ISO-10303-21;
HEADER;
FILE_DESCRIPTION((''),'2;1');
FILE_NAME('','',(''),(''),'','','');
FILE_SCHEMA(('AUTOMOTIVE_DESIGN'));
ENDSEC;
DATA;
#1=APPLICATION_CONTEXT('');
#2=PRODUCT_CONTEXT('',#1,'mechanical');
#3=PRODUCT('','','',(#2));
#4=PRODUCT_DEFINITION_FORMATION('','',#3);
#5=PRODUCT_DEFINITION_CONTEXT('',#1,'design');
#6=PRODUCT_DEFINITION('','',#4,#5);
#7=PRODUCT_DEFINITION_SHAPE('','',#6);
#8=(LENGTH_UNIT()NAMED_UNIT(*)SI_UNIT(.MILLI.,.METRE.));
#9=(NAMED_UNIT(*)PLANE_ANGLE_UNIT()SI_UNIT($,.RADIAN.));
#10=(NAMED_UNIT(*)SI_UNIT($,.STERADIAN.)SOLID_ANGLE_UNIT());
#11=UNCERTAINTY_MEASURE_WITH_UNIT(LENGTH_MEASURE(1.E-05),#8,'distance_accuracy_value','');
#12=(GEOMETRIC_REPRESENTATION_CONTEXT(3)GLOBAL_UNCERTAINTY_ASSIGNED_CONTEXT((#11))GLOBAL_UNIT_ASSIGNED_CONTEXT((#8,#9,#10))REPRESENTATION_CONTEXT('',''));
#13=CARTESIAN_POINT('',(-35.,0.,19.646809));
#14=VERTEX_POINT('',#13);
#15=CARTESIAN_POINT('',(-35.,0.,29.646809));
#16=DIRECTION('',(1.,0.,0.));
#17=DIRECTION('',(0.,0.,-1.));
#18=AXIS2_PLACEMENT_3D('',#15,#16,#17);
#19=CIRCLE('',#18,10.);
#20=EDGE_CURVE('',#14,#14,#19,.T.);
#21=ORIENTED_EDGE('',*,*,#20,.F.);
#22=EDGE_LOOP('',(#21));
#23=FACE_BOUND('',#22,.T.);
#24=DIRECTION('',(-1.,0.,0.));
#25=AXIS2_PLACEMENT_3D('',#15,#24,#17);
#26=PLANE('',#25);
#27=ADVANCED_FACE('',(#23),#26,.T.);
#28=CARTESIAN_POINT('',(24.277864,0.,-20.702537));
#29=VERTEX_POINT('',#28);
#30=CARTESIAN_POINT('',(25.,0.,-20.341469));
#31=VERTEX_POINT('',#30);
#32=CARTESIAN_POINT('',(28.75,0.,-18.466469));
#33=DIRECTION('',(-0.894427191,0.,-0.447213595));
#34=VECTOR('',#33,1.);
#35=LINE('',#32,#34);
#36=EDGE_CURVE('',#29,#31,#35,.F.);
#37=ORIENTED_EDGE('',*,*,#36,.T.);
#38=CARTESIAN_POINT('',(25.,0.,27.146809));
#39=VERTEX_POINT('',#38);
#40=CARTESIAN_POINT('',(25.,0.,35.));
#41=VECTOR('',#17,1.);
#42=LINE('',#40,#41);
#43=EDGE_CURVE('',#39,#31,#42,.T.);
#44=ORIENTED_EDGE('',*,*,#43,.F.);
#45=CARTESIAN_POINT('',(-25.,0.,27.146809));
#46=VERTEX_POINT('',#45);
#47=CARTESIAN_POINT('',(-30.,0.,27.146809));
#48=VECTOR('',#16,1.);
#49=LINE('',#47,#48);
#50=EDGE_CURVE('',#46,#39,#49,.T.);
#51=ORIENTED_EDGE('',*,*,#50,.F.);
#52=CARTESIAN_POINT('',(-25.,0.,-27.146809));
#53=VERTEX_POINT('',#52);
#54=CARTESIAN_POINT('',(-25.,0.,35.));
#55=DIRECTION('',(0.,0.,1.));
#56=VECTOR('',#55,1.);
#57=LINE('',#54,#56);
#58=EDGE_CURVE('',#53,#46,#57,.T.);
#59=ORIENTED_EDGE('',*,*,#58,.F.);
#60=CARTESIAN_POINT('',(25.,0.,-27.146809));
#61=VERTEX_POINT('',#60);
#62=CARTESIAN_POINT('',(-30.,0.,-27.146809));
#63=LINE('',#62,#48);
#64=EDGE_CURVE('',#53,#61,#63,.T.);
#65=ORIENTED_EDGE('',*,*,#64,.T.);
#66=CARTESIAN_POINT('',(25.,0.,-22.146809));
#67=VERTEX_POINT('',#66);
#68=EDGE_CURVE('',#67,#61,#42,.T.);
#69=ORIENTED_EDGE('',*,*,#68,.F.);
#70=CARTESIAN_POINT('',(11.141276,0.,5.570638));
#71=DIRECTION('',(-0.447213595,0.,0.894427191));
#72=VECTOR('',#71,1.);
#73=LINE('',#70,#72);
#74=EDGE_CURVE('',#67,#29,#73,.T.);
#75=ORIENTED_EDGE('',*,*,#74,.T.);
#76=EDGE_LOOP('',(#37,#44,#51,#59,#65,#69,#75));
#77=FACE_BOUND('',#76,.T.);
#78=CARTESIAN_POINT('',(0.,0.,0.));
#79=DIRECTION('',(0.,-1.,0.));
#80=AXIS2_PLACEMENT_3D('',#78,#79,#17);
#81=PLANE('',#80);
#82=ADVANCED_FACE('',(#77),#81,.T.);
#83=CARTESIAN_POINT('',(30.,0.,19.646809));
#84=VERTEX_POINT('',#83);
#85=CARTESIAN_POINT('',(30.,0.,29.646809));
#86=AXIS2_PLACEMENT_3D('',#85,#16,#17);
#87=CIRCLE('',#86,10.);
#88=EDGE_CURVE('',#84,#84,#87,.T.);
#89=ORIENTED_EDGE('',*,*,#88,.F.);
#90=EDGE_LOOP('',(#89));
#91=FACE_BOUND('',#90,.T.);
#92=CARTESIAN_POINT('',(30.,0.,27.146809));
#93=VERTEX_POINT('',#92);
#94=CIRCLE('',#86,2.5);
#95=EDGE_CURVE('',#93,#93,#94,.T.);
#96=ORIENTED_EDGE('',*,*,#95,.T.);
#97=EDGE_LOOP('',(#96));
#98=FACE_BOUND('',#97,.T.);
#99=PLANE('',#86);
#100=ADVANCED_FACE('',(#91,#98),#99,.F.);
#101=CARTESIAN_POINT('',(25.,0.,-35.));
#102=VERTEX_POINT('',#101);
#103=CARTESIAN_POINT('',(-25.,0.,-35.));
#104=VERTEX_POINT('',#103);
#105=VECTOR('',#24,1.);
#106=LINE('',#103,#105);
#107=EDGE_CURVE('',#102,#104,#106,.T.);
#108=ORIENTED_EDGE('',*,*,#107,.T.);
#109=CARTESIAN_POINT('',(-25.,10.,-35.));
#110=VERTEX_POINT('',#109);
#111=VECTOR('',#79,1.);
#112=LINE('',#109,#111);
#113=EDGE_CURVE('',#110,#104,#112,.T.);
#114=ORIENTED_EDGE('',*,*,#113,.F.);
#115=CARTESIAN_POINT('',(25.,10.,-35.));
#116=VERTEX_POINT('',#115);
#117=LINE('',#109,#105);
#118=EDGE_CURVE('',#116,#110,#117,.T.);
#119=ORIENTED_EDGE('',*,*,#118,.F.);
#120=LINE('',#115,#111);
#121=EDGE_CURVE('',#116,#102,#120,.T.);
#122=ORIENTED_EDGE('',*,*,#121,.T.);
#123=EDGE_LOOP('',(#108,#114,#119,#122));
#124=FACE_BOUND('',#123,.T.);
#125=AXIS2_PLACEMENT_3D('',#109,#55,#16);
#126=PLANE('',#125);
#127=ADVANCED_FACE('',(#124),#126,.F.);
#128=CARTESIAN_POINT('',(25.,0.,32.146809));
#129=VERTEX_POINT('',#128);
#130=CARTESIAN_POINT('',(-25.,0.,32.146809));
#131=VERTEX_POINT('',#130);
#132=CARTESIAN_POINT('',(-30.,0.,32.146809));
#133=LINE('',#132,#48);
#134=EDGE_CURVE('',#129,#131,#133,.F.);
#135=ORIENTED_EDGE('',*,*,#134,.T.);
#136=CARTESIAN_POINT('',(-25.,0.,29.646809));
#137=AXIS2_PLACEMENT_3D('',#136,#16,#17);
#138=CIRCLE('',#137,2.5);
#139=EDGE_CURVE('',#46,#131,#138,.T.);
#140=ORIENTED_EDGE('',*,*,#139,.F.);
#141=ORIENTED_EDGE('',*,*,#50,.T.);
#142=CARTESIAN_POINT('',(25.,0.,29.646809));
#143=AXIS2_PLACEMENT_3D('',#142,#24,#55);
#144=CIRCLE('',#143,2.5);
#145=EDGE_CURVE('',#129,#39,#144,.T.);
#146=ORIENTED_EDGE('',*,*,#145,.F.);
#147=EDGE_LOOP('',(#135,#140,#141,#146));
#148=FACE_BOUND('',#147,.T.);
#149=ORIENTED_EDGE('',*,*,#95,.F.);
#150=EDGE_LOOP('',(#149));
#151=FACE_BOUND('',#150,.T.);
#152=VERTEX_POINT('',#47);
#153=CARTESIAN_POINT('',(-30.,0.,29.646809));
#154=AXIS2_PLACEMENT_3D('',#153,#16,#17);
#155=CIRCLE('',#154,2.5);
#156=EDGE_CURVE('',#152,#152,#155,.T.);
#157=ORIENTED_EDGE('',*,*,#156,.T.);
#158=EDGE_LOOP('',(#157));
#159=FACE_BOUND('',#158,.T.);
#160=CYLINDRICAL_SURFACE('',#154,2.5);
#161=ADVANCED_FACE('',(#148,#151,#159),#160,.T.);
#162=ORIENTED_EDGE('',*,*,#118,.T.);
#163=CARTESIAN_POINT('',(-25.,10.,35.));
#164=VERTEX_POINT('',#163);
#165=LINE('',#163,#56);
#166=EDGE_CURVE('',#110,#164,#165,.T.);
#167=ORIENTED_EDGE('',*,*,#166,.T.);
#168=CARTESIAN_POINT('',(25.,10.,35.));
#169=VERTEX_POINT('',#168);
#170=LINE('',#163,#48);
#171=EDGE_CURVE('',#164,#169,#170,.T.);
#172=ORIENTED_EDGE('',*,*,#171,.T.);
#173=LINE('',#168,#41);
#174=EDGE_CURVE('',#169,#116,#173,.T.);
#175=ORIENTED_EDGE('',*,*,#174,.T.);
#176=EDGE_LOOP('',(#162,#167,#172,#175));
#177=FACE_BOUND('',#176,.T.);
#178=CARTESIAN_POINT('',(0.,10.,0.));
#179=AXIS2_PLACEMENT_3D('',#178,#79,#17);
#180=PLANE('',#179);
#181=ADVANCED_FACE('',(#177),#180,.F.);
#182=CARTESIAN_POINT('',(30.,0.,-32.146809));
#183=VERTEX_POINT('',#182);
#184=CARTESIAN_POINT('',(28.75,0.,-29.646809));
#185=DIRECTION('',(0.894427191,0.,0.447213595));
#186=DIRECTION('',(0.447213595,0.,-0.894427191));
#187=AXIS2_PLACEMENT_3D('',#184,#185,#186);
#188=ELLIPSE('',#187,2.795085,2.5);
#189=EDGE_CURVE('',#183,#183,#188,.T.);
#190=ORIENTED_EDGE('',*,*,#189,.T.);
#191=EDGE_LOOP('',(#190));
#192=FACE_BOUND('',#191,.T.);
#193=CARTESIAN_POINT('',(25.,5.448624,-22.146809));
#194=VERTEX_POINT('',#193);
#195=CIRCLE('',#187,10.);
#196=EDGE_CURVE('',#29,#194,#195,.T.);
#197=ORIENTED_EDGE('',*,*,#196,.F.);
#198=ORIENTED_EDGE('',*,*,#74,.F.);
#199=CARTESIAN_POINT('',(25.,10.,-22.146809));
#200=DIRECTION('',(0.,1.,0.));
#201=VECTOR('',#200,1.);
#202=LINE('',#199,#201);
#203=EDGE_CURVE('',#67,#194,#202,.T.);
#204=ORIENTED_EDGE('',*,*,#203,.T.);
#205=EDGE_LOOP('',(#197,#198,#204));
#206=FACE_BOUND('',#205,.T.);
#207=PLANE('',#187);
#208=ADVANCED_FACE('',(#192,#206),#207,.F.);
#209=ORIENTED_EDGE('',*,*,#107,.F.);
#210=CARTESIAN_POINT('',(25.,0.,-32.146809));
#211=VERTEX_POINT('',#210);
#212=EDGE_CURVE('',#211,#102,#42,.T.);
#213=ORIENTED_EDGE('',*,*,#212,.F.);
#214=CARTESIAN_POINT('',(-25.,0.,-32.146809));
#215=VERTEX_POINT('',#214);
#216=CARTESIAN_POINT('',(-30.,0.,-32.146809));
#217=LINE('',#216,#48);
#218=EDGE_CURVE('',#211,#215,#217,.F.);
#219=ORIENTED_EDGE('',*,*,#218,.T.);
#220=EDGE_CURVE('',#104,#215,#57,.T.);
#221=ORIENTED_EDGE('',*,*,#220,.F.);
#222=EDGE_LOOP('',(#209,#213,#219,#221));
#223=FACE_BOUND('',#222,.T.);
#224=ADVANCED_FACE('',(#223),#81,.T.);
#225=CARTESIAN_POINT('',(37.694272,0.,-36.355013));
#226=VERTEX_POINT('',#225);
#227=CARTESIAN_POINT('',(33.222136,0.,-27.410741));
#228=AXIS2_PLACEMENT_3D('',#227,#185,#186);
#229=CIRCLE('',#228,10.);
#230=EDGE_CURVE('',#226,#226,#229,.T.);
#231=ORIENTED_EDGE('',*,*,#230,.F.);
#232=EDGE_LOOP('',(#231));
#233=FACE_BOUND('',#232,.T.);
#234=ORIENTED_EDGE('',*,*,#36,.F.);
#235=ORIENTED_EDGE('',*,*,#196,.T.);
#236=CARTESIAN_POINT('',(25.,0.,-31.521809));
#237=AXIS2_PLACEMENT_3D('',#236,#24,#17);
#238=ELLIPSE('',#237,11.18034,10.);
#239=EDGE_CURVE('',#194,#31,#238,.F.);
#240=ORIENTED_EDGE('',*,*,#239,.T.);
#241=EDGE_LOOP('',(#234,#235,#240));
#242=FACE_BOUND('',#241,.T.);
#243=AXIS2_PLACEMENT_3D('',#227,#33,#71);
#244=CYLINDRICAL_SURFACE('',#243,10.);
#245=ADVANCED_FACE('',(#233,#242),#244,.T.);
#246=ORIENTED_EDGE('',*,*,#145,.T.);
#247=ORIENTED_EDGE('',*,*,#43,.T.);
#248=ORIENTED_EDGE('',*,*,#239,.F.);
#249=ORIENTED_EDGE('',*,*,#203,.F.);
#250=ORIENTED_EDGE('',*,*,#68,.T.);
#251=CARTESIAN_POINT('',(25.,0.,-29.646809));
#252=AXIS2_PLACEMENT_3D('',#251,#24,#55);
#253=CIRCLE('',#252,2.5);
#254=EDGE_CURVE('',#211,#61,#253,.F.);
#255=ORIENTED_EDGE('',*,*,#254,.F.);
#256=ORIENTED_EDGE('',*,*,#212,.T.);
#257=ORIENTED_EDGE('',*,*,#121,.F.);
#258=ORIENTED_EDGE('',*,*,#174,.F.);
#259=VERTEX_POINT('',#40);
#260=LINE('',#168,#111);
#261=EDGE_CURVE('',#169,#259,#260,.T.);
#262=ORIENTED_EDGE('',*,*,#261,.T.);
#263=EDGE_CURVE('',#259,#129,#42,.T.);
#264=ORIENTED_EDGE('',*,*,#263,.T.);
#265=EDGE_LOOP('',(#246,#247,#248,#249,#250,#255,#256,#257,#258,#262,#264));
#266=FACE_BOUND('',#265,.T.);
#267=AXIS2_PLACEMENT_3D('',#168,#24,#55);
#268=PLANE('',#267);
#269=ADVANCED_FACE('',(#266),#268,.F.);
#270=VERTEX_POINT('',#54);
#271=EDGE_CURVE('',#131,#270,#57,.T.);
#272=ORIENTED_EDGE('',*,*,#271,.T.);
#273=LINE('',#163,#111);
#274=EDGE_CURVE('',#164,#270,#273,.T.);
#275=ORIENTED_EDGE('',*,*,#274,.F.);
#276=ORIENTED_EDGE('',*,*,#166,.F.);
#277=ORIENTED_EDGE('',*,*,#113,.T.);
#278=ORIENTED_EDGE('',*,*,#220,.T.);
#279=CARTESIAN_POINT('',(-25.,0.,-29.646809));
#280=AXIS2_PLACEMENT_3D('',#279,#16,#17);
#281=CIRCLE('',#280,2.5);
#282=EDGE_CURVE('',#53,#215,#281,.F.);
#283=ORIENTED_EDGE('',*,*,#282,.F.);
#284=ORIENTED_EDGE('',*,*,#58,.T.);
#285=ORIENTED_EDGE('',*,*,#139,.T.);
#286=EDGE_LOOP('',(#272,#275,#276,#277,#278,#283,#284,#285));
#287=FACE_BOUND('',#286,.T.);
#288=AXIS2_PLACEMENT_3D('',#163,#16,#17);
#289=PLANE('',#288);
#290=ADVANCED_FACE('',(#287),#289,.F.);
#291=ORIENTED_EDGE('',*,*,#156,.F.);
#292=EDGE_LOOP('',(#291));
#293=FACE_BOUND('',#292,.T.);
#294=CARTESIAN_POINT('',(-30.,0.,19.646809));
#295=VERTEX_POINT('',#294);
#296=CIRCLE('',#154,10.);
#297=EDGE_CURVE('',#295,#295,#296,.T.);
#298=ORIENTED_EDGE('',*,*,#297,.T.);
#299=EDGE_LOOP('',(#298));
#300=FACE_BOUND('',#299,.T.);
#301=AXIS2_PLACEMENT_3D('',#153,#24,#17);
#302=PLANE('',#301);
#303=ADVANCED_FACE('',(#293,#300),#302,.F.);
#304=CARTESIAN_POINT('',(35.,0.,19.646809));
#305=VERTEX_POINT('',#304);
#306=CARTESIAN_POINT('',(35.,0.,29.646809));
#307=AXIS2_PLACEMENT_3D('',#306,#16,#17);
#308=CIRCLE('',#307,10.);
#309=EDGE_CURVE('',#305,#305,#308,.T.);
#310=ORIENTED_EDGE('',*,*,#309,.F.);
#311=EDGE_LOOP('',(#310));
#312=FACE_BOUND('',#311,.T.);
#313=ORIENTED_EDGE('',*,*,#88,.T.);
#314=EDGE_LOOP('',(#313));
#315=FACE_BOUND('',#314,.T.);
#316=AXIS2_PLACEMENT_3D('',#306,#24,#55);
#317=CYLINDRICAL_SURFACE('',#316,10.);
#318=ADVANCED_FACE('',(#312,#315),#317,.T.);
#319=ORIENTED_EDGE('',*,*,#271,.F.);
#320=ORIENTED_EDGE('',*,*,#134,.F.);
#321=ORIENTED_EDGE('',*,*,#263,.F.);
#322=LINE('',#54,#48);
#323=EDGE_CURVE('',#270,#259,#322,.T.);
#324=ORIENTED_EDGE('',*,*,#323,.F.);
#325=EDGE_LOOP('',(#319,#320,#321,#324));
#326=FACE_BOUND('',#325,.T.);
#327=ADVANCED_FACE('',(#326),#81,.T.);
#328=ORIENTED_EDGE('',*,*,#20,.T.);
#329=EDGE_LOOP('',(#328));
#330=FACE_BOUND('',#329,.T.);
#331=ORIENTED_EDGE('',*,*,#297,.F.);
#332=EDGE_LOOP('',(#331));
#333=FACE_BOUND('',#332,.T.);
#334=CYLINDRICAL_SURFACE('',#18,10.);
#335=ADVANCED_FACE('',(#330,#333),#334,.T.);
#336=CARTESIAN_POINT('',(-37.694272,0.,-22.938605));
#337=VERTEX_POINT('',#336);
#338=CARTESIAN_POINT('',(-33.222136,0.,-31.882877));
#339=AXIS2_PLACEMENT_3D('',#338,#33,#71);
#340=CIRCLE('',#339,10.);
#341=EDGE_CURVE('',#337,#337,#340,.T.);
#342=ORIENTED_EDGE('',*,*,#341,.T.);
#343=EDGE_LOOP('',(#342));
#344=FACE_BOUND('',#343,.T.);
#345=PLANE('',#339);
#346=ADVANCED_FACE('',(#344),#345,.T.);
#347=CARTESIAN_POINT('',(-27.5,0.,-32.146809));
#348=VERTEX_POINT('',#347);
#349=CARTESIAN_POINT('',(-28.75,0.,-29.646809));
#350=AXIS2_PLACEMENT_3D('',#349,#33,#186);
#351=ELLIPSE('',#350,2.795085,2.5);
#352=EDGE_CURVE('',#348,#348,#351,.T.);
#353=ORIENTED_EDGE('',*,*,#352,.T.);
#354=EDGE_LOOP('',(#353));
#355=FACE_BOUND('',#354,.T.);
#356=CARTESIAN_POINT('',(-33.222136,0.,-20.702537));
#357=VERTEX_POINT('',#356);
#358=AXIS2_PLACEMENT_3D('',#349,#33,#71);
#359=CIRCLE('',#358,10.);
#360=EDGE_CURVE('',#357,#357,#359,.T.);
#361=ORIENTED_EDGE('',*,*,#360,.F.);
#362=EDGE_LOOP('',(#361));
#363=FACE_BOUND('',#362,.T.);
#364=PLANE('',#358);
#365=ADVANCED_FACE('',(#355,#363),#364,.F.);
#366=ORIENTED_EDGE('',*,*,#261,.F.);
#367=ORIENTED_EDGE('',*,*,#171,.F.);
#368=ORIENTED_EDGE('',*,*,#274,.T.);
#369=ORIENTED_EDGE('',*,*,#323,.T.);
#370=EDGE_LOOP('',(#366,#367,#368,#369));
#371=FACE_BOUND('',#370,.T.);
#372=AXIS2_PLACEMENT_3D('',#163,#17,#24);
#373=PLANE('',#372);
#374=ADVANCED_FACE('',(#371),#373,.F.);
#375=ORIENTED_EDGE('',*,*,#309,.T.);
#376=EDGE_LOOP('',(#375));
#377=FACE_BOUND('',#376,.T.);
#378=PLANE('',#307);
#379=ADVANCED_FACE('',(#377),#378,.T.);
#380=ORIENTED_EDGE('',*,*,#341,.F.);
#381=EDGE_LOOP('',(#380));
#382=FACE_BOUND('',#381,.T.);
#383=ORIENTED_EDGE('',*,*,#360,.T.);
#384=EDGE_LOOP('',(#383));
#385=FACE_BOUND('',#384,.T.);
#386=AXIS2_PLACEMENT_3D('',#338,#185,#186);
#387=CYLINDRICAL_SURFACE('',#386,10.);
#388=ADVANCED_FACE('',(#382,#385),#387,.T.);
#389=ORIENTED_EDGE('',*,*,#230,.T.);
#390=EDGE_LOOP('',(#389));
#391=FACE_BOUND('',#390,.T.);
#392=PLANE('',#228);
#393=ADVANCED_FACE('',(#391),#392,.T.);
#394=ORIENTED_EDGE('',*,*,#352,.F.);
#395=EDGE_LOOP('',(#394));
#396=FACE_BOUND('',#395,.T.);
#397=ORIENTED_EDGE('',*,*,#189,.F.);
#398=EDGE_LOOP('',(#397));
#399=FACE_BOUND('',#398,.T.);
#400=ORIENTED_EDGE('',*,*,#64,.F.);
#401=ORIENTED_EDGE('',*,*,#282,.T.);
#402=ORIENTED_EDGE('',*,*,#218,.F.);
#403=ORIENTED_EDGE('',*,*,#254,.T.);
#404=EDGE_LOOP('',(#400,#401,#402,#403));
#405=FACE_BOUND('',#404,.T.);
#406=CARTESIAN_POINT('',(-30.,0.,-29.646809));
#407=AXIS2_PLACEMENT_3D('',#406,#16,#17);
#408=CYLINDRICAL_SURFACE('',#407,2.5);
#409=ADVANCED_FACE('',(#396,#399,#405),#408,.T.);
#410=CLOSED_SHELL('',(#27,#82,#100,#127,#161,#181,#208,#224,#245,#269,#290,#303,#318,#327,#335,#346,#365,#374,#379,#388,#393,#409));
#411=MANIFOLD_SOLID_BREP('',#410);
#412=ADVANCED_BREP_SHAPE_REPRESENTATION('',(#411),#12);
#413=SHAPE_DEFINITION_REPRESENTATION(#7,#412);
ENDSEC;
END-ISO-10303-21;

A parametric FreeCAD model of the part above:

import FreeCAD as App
import Part
import Sketcher
from FreeCAD import Vector
Q = App.Units.Quantity

doc = App.newDocument("Part")
body = doc.addObject("PartDesign::Body", "Body")

# Sketch on XZ plane
sketch1 = body.newObject("Sketcher::SketchObject", "Sketch")
sketch1.AttachmentSupport = (doc.getObject("XZ_Plane"), [""])
sketch1.MapMode = "FlatFace"
sketch1.addGeometry([
    Part.LineSegment(Vector(-25, -35, 0), Vector(-25, 35, 0)),
    Part.LineSegment(Vector(-25, 35, 0), Vector(25, 35, 0)),
    Part.LineSegment(Vector(25, 35, 0), Vector(25, -35, 0)),
    Part.LineSegment(Vector(25, -35, 0), Vector(-25, -35, 0)),
], False)
sketch1.addConstraint([
    Sketcher.Constraint("Coincident", 0, 2, 1, 1),
    Sketcher.Constraint("Coincident", 1, 2, 2, 1),
    Sketcher.Constraint("Coincident", 2, 2, 3, 1),
    Sketcher.Constraint("Coincident", 3, 2, 0, 1),
    Sketcher.Constraint("Vertical", 0),
    Sketcher.Constraint("Horizontal", 1),
    Sketcher.Constraint("Vertical", 2),
    Sketcher.Constraint("Horizontal", 3),
    Sketcher.Constraint("Symmetric", 0, 2, 2, 2, -1, 1),
    Sketcher.Constraint("DistanceX", 1, 1, 1, 2, Q("50 mm")),
    Sketcher.Constraint("DistanceY", 0, 1, 0, 2, Q("70 mm")),
])
pad1 = body.newObject("PartDesign::Pad", "Pad")
pad1.Profile = sketch1
pad1.Length = 10
pad1.Reversed = True

# Sketch on YZ plane
sketch2 = body.newObject("Sketcher::SketchObject", "Sketch001")
sketch2.AttachmentSupport = (doc.getObject("YZ_Plane"), [""])
sketch2.MapMode = "FlatFace"
sketch2.addGeometry(Part.Circle(Vector(0, 29.6, 0), Vector(0, 0, 1), 2.5), False)
sketch2.addConstraint([
    Sketcher.Constraint("PointOnObject", 0, 3, -2),
    Sketcher.Constraint("Diameter", 0, Q("5 mm")),
    Sketcher.Constraint("DistanceY", -1, 1, 0, 3, Q("29.646809 mm")),
])
pad2 = body.newObject("PartDesign::Pad", "Pad001")
pad2.Profile = sketch2
pad2.Length = 60
pad2.Midplane = True

# Sketch on YZ plane
sketch3 = body.newObject("Sketcher::SketchObject", "Sketch002")
sketch3.AttachmentSupport = (doc.getObject("YZ_Plane"), [""])
sketch3.MapMode = "FlatFace"
sketch3.AttachmentOffset = App.Placement(Vector(0, 0, 30), App.Rotation())
sketch3.addGeometry(Part.Circle(Vector(0, 30, 0), Vector(0, 0, 1), 10), False)
sketch3.addConstraint([
    Sketcher.Constraint("PointOnObject", 0, 3, -2),
    Sketcher.Constraint("Diameter", 0, Q("20 mm")),
    Sketcher.Constraint("DistanceY", -1, 1, 0, 3, Q("29.646809 mm")),
])
pad3 = body.newObject("PartDesign::Pad", "Pad002")
pad3.Profile = sketch3
pad3.Length = 5
doc.recompute()

mirrored = body.newObject("PartDesign::Mirrored", "Mirrored")
mirrored.Originals = [pad3]
mirrored.MirrorPlane = (doc.getObject("YZ_Plane"), [""])
body.Tip = mirrored
doc.recompute()

mirrored2 = body.newObject("PartDesign::Mirrored", "Mirrored001")
mirrored2.Originals = [pad2]
mirrored2.MirrorPlane = (doc.getObject("XY_Plane"), [""])
body.Tip = mirrored2

# Sketch on XZ plane
sketch4 = body.newObject("Sketcher::SketchObject", "Sketch003")
sketch4.AttachmentSupport = (doc.getObject("XZ_Plane"), [""])
sketch4.MapMode = "FlatFace"
sketch4.addGeometry([
    Part.LineSegment(Vector(-30, -27.1, 0), Vector(-27.5, -32.1, 0)),  # 0
    Part.LineSegment(Vector(-27.5, -32.1, 0), Vector(-30, -32.1, 0)),  # 1
    Part.LineSegment(Vector(-30, -32.1, 0), Vector(-30, -27.1, 0)),  # 2
    Part.LineSegment(Vector(30, -32.1, 0), Vector(27.5, -27.1, 0)),  # 3
    Part.LineSegment(Vector(27.5, -27.1, 0), Vector(30, -27.1, 0)),  # 4
    Part.LineSegment(Vector(30, -27.1, 0), Vector(30, -32.1, 0)),  # 5
], False)
sketch4.addConstraint([
    Sketcher.Constraint("Coincident", 0, 2, 1, 1),
    Sketcher.Constraint("Coincident", 1, 2, 2, 1),
    Sketcher.Constraint("Coincident", 2, 2, 0, 1),
    Sketcher.Constraint("Coincident", 3, 2, 4, 1),
    Sketcher.Constraint("Coincident", 4, 2, 5, 1),
    Sketcher.Constraint("Coincident", 5, 2, 3, 1),
    Sketcher.Constraint("Horizontal", 1),
    Sketcher.Constraint("Vertical", 2),
    Sketcher.Constraint("Horizontal", 4),
    Sketcher.Constraint("Vertical", 5),
    Sketcher.Constraint("Symmetric", 2, 2, 4, 2, -2),
    Sketcher.Constraint("Parallel", 0, 3),
    Sketcher.Constraint("Horizontal", 1, 2, 5, 2),
    Sketcher.Constraint("DistanceY", 2, 1, 2, 2, Q("5 mm")),
    Sketcher.Constraint("DistanceX", 1, 2, 1, 1, Q("2.5 mm")),
    Sketcher.Constraint("DistanceX", 1, 2, -1, 1, Q("30 mm")),
    Sketcher.Constraint("DistanceY", 0, 2, -1, 1, Q("32.146809 mm")),
])
pocket1 = body.newObject("PartDesign::Pocket", "Pocket")
pocket1.Profile = sketch4
pocket1.Type = "ThroughAll"
pocket1.Midplane = True

# Sketch on an angled plane
sketch5 = body.newObject("Sketcher::SketchObject", "Sketch004")
sketch5.Placement = App.Placement(Vector(11.141276, 0, 5.570638), App.Rotation(Vector(0.447213595, 0, -0.894427191), Vector(0, 1, 0), Vector(0.894427191, 0, 0.447213595), "ZXY"))
sketch5.addGeometry(Part.Circle(Vector(39, 0, 0), Vector(0, 0, 1), 10), False)
sketch5.addConstraint([
    Sketcher.Constraint("PointOnObject", 0, 3, -1),
    Sketcher.Constraint("Diameter", 0, Q("20 mm")),
    Sketcher.Constraint("DistanceX", -1, 1, 0, 3, Q("39.374303 mm")),
])
pad4 = body.newObject("PartDesign::Pad", "Pad003")
pad4.Profile = sketch5
pad4.Length = 5

# Sketch on an angled plane
sketch6 = body.newObject("Sketcher::SketchObject", "Sketch005")
sketch6.Placement = App.Placement(Vector(-34.858724, 0, -17.429362), App.Rotation(Vector(-0.447213595, 0, 0.894427191), Vector(0, 1, 0), Vector(-0.894427191, 0, -0.447213595), "ZXY"))
sketch6.addGeometry(Part.Circle(Vector(-14, 0, 0), Vector(0, 0, 1), 10), False)
sketch6.addConstraint([
    Sketcher.Constraint("PointOnObject", 0, 3, -1),
    Sketcher.Constraint("Diameter", 0, Q("20 mm")),
    Sketcher.Constraint("DistanceX", 0, 3, -1, 1, Q("13.659521 mm")),
])
pad5 = body.newObject("PartDesign::Pad", "Pad004")
pad5.Profile = sketch6
pad5.Length = 5

doc.recompute()
